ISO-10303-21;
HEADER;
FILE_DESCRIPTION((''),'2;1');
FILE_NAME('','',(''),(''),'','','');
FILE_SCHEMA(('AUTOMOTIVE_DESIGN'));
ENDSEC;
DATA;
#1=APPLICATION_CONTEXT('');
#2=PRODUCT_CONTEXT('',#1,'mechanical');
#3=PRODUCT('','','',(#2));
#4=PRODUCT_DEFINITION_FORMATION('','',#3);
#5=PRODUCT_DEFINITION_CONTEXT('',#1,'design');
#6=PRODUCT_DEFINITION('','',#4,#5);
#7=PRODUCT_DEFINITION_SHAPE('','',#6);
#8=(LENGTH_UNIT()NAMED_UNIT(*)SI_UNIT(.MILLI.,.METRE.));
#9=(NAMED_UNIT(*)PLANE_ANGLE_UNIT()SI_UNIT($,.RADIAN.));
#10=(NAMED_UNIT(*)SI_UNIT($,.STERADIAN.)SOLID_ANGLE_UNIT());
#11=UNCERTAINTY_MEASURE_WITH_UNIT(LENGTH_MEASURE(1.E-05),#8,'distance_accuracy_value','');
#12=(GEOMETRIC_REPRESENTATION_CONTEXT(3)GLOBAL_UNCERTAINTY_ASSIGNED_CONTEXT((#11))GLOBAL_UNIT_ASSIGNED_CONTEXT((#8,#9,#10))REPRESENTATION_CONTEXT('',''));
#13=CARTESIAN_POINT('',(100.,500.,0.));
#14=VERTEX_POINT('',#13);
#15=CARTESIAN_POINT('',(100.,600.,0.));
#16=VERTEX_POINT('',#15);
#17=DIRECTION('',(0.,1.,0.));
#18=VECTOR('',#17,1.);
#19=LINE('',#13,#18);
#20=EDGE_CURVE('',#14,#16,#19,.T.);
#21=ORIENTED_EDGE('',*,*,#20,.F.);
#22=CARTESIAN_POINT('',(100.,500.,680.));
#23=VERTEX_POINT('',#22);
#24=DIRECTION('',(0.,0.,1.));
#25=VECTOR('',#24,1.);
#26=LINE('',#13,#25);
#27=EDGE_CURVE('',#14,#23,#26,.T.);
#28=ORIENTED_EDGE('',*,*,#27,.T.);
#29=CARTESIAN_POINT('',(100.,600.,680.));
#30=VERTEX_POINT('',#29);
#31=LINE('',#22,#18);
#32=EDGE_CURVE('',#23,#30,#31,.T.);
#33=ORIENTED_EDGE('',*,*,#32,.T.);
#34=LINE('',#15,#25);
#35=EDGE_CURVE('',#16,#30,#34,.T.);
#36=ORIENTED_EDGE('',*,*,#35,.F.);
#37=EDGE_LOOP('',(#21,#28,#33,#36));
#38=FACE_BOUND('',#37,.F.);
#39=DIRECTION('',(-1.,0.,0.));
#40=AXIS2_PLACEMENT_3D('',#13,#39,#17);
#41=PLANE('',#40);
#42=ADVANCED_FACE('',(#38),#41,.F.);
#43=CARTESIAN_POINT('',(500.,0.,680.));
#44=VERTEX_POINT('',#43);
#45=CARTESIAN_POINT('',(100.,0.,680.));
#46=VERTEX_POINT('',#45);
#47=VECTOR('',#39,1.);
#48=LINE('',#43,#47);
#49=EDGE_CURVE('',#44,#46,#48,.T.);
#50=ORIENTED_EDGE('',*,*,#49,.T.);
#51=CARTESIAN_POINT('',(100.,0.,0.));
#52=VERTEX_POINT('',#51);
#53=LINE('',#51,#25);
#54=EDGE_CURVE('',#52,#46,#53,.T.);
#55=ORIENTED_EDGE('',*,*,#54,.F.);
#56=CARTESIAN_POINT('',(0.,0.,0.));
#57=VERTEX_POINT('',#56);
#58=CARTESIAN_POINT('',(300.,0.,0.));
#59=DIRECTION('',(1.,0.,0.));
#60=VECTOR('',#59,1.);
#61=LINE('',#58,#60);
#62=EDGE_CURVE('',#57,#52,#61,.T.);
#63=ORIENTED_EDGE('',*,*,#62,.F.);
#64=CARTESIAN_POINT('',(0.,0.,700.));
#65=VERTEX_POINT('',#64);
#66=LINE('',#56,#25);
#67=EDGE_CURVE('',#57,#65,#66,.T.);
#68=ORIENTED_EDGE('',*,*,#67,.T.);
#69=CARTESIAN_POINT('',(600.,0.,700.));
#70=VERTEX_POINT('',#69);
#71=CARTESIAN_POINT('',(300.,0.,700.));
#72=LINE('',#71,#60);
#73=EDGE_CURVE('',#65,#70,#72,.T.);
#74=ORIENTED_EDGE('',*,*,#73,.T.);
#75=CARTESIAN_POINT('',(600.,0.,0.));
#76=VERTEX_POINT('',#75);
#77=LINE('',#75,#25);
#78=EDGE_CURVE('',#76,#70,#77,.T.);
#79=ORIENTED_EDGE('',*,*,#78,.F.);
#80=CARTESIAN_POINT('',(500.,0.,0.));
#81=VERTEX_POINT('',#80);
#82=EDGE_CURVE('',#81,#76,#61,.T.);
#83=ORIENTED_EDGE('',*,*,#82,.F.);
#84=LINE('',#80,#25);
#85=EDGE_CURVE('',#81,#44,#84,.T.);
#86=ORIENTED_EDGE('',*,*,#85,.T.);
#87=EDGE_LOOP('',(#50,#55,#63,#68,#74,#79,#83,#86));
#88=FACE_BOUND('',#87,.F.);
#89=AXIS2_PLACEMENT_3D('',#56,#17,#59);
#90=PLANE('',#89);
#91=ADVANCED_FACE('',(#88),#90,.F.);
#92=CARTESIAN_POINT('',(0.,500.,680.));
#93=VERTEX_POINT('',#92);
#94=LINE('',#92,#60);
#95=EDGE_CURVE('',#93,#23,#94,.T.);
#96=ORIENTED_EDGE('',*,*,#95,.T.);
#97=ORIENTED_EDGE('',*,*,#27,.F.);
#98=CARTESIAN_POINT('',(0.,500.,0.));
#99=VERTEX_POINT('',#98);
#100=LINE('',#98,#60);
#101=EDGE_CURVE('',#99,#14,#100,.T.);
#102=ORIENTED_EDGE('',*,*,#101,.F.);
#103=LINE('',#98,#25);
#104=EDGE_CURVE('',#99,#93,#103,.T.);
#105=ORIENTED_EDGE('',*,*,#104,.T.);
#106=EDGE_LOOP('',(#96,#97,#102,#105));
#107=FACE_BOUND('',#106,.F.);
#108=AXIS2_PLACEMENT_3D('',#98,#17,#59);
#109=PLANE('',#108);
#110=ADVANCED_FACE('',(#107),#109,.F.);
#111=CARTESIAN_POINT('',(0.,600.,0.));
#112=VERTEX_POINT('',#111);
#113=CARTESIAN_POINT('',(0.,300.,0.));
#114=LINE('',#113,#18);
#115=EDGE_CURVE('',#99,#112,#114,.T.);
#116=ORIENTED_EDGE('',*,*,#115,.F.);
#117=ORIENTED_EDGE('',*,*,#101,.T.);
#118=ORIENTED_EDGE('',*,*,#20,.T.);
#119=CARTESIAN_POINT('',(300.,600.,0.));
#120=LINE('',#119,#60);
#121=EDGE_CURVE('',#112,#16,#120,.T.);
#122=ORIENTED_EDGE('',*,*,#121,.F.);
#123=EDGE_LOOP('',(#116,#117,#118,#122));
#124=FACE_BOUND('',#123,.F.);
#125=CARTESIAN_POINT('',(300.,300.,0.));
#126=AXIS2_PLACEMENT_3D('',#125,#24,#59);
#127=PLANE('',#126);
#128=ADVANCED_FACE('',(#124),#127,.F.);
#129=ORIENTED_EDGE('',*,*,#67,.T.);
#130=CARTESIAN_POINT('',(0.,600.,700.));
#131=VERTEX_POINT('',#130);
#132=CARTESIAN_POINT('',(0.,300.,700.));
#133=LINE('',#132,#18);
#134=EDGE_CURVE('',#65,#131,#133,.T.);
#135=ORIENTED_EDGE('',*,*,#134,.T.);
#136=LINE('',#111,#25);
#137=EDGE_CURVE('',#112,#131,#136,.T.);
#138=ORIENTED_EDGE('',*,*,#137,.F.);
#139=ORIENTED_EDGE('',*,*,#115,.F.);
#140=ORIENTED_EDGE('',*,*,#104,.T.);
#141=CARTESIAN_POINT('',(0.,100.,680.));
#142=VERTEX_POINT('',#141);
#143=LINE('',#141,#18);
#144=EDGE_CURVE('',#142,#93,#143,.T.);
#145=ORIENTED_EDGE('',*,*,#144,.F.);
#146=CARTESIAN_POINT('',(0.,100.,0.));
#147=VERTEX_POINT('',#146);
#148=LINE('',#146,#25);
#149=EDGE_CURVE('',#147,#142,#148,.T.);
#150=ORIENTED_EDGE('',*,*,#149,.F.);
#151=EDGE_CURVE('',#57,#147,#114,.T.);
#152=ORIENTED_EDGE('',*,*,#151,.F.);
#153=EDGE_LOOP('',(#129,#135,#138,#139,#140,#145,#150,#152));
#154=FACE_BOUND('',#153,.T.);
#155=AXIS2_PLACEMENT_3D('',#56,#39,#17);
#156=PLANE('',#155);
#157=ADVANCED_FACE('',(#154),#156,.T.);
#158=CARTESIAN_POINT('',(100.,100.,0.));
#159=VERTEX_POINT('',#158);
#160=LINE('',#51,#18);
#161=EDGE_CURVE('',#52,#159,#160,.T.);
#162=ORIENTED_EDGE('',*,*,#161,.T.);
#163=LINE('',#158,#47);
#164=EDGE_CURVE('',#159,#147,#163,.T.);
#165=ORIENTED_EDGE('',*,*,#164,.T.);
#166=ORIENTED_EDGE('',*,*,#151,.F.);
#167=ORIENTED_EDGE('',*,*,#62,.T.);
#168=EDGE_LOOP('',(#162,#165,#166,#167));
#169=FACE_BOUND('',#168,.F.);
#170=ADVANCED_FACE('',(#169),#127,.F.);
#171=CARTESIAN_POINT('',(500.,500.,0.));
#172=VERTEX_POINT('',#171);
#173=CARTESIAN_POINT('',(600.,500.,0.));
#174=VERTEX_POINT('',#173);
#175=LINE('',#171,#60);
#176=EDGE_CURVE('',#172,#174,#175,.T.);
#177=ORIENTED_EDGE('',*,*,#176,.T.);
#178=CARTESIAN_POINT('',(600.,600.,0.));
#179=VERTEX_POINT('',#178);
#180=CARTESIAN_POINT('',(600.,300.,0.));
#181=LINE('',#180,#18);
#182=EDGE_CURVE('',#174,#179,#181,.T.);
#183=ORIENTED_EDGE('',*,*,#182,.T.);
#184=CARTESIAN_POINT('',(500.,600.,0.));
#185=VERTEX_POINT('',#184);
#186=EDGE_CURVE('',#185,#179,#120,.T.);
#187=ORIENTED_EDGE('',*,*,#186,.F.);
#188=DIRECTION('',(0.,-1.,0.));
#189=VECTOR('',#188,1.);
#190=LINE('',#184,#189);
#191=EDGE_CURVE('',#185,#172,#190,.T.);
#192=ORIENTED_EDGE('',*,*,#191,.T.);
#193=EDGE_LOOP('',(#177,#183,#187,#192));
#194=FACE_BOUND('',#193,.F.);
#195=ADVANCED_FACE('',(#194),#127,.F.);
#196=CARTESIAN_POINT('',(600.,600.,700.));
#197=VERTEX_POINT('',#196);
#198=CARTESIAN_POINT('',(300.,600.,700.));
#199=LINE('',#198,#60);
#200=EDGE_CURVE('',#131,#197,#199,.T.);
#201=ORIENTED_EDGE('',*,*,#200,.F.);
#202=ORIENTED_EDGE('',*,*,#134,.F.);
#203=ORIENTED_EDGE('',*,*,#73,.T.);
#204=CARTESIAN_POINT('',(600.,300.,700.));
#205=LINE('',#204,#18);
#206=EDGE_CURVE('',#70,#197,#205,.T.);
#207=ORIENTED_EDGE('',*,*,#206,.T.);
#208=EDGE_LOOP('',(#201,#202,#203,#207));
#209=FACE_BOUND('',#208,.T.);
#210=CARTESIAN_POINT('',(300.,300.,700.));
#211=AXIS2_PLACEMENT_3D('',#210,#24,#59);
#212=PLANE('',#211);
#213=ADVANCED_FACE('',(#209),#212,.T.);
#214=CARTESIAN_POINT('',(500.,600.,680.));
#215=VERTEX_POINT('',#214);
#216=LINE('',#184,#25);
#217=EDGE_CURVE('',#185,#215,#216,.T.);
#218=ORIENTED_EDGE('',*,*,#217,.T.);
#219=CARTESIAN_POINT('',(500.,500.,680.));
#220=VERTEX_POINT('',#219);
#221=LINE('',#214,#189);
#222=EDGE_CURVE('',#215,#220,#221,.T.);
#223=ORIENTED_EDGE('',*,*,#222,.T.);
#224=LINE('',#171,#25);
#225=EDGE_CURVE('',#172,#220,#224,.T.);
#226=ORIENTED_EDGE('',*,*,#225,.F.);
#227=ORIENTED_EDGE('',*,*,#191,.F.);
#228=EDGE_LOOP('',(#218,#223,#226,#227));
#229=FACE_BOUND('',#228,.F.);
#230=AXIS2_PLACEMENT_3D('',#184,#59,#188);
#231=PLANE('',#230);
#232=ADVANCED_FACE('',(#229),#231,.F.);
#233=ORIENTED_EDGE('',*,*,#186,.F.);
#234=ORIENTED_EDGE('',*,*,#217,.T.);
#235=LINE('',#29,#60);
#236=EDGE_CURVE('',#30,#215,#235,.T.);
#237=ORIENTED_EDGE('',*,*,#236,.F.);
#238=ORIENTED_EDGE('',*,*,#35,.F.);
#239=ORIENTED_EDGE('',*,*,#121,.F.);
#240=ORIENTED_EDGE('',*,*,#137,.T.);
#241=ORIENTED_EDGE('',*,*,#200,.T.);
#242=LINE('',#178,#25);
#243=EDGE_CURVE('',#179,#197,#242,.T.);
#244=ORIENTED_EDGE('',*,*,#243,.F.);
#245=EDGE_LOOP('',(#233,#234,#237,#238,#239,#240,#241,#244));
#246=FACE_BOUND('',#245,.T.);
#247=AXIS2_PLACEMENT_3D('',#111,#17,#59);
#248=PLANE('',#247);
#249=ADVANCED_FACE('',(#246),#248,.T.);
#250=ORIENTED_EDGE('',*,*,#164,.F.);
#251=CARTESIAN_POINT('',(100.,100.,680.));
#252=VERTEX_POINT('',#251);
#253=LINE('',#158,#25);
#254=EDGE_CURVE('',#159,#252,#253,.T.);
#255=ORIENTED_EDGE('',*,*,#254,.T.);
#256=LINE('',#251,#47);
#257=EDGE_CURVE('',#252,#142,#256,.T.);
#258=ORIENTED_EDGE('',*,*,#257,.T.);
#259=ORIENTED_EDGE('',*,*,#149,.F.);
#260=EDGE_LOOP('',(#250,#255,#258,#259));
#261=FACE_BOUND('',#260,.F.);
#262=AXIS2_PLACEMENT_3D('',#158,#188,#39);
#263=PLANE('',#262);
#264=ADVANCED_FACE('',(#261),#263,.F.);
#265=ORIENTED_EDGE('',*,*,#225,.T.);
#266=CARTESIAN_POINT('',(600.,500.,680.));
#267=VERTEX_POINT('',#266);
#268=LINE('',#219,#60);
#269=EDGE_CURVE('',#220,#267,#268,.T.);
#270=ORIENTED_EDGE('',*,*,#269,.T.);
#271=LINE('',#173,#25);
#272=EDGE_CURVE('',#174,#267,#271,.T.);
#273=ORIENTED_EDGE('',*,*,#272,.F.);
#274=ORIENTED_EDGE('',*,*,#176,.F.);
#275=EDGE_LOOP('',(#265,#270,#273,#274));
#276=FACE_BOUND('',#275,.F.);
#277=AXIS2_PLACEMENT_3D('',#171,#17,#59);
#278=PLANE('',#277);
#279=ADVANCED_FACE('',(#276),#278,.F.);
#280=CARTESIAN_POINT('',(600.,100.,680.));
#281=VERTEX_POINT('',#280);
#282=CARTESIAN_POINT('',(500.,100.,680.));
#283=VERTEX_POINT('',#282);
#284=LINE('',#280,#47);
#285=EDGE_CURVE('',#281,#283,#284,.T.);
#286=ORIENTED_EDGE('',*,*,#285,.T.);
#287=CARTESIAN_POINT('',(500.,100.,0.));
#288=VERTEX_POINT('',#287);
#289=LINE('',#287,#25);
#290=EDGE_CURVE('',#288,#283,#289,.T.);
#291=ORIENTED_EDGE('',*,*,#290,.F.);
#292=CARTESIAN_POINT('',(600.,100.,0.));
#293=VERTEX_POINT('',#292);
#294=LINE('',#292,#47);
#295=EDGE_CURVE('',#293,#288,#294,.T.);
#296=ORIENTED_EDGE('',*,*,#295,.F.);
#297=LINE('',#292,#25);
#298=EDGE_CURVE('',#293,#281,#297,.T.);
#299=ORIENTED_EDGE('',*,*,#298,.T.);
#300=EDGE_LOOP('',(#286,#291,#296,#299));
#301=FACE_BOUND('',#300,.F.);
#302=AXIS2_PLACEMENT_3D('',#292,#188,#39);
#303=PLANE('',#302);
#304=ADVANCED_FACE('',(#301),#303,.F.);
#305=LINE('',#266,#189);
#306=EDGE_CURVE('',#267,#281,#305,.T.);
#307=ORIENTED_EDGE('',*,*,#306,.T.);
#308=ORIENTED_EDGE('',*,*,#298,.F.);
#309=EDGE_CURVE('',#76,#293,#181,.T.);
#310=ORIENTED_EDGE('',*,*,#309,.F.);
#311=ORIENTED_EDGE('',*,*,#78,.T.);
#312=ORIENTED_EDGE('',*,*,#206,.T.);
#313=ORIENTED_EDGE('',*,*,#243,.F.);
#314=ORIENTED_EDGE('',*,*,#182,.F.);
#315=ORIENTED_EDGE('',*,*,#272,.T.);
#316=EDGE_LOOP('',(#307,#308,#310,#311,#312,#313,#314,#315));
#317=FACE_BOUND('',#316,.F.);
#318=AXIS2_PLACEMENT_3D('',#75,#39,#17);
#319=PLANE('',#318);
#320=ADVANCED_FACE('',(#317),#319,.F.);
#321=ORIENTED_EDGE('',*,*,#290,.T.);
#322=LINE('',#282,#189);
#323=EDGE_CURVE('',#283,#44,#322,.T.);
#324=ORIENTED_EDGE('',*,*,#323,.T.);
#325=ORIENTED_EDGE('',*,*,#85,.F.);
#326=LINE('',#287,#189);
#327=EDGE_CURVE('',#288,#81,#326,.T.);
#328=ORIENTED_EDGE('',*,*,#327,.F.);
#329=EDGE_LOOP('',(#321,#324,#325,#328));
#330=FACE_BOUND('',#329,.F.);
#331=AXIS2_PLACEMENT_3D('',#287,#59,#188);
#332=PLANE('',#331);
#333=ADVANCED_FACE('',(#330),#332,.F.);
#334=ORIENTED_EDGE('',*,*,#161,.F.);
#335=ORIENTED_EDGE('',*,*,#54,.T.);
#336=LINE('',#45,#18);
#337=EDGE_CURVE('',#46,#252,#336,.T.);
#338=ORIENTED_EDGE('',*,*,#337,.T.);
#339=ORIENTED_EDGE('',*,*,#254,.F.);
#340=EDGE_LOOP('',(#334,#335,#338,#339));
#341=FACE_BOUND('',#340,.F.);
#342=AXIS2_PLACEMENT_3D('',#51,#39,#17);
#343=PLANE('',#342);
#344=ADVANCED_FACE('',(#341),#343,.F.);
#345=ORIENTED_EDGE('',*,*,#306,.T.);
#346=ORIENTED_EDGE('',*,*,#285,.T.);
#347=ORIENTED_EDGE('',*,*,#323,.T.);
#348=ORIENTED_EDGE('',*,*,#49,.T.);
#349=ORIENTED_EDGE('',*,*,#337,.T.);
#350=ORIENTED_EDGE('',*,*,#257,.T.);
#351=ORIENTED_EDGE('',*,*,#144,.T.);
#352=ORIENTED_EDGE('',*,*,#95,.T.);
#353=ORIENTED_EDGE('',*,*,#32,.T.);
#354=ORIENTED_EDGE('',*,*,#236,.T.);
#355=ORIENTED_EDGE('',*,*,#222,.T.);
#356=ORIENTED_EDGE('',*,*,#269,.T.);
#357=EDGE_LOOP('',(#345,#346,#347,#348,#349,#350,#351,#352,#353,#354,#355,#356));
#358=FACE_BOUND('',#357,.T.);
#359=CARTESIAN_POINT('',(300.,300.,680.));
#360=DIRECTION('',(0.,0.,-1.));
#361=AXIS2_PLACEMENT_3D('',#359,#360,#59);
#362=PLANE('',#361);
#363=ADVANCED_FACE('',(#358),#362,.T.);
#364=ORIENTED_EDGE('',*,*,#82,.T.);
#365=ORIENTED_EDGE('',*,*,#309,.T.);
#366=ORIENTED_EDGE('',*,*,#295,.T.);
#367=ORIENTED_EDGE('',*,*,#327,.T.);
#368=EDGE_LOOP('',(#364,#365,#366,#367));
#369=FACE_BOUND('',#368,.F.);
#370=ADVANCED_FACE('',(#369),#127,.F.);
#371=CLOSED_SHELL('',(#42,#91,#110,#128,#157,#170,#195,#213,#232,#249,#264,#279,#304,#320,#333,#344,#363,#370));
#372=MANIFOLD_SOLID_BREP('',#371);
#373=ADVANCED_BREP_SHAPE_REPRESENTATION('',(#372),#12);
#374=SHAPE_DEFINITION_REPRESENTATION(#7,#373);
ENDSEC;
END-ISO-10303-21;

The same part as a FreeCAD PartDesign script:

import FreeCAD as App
import Part
import Sketcher
from FreeCAD import Vector
Q = App.Units.Quantity

doc = App.newDocument("Part")
params = doc.addObject("Spreadsheet::Sheet", "Params")
for row, (alias, value) in enumerate([
    ("sketch1_width", "600 mm"),
    ("pad1_length", "700 mm"),
    ("sketch2_width", "400 mm"),
    ("sketch2_width2", "100 mm"),
    ("pocket1_length", "680 mm"),
], start=1):
    params.set(f"A{row}", alias)
    params.set(f"B{row}", "=" + value)
    params.setAlias(f"B{row}", alias)

body = doc.addObject("PartDesign::Body", "Body")

# Sketch on XY plane
sketch1 = doc.addObject("Sketcher::SketchObject", "Sketch")
body.addObject(sketch1)
sketch1.AttachmentSupport = (doc.XY_Plane, [""])
sketch1.MapMode = "FlatFace"
sketch1.addGeometry([
    Part.LineSegment(Vector(0, 600, 0), Vector(0, 0, 0)),
    Part.LineSegment(Vector(0, 0, 0), Vector(600, 0, 0)),
    Part.LineSegment(Vector(600, 0, 0), Vector(600, 600, 0)),
    Part.LineSegment(Vector(600, 600, 0), Vector(0, 600, 0)),
], False)
sketch1.addConstraint([
    Sketcher.Constraint("Coincident", 0, 2, 1, 1),
    Sketcher.Constraint("Coincident", 1, 2, 2, 1),
    Sketcher.Constraint("Coincident", 2, 2, 3, 1),
    Sketcher.Constraint("Coincident", 3, 2, 0, 1),
    Sketcher.Constraint("Vertical", 0),
    Sketcher.Constraint("Horizontal", 1),
    Sketcher.Constraint("Vertical", 2),
    Sketcher.Constraint("Horizontal", 3),
    Sketcher.Constraint("Coincident", 0, 2, -1, 1),
    Sketcher.Constraint("Equal", 3, 0),
    Sketcher.Constraint("DistanceX", 1, 1, 1, 2, Q("600 mm")),
])
sketch1.setExpression("Constraints[10]", "Params.sketch1_width")
pad1 = doc.addObject("PartDesign::Pad", "Pad")
body.addObject(pad1)
pad1.Profile = sketch1
pad1.setExpression("Length", "Params.pad1_length")

# Sketch on XY plane
sketch2 = doc.addObject("Sketcher::SketchObject", "Sketch001")
body.addObject(sketch2)
sketch2.AttachmentSupport = (doc.XY_Plane, [""])
sketch2.MapMode = "FlatFace"
sketch2.addGeometry([
    Part.LineSegment(Vector(500, 0, 0), Vector(100, 0, 0)),  # 0
    Part.LineSegment(Vector(100, 0, 0), Vector(100, 100, 0)),  # 1
    Part.LineSegment(Vector(100, 100, 0), Vector(0, 100, 0)),  # 2
    Part.LineSegment(Vector(0, 100, 0), Vector(0, 500, 0)),  # 3
    Part.LineSegment(Vector(0, 500, 0), Vector(100, 500, 0)),  # 4
    Part.LineSegment(Vector(100, 500, 0), Vector(100, 600, 0)),  # 5
    Part.LineSegment(Vector(100, 600, 0), Vector(500, 600, 0)),  # 6
    Part.LineSegment(Vector(500, 600, 0), Vector(500, 500, 0)),  # 7
    Part.LineSegment(Vector(500, 500, 0), Vector(600, 500, 0)),  # 8
    Part.LineSegment(Vector(600, 500, 0), Vector(600, 100, 0)),  # 9
    Part.LineSegment(Vector(600, 100, 0), Vector(500, 100, 0)),  # 10
    Part.LineSegment(Vector(500, 100, 0), Vector(500, 0, 0)),  # 11
], False)
sketch2.addConstraint([
    Sketcher.Constraint("Coincident", 0, 2, 1, 1),
    Sketcher.Constraint("Coincident", 1, 2, 2, 1),
    Sketcher.Constraint("Coincident", 2, 2, 3, 1),
    Sketcher.Constraint("Coincident", 3, 2, 4, 1),
    Sketcher.Constraint("Coincident", 4, 2, 5, 1),
    Sketcher.Constraint("Coincident", 5, 2, 6, 1),
    Sketcher.Constraint("Coincident", 6, 2, 7, 1),
    Sketcher.Constraint("Coincident", 7, 2, 8, 1),
    Sketcher.Constraint("Coincident", 8, 2, 9, 1),
    Sketcher.Constraint("Coincident", 9, 2, 10, 1),
    Sketcher.Constraint("Coincident", 10, 2, 11, 1),
    Sketcher.Constraint("Coincident", 11, 2, 0, 1),
    Sketcher.Constraint("Horizontal", 0),
    Sketcher.Constraint("Vertical", 1),
    Sketcher.Constraint("Horizontal", 2),
    Sketcher.Constraint("Vertical", 3),
    Sketcher.Constraint("Horizontal", 4),
    Sketcher.Constraint("Vertical", 5),
    Sketcher.Constraint("Horizontal", 6),
    Sketcher.Constraint("Vertical", 7),
    Sketcher.Constraint("Horizontal", 8),
    Sketcher.Constraint("Vertical", 9),
    Sketcher.Constraint("Horizontal", 10),
    Sketcher.Constraint("Vertical", 11),
    Sketcher.Constraint("PointOnObject", 0, 2, -1),
    Sketcher.Constraint("PointOnObject", 2, 2, -2),
    Sketcher.Constraint("Horizontal", 4, 2, 7, 2),
    Sketcher.Constraint("Horizontal", 2, 2, 9, 2),
    Sketcher.Constraint("Vertical", 1, 2, 4, 2),
    Sketcher.Constraint("Vertical", 7, 2, 10, 2),
    Sketcher.Constraint("Equal", 4, 8),
    Sketcher.Constraint("Equal", 10, 1),
    Sketcher.Constraint("Equal", 6, 3),
    Sketcher.Constraint("Equal", 1, 5),
    Sketcher.Constraint("DistanceX", 0, 2, 0, 1, Q("400 mm")),
    Sketcher.Constraint("DistanceX", 2, 2, 2, 1, Q("100 mm")),
])
sketch2.setExpression("Constraints[34]", "Params.sketch2_width")
sketch2.setExpression("Constraints[35]", "Params.sketch2_width2")
pocket1 = doc.addObject("PartDesign::Pocket", "Pocket")
body.addObject(pocket1)
pocket1.Profile = sketch2
pocket1.setExpression("Length", "Params.pocket1_length")
pocket1.Reversed = True

doc.recompute()
